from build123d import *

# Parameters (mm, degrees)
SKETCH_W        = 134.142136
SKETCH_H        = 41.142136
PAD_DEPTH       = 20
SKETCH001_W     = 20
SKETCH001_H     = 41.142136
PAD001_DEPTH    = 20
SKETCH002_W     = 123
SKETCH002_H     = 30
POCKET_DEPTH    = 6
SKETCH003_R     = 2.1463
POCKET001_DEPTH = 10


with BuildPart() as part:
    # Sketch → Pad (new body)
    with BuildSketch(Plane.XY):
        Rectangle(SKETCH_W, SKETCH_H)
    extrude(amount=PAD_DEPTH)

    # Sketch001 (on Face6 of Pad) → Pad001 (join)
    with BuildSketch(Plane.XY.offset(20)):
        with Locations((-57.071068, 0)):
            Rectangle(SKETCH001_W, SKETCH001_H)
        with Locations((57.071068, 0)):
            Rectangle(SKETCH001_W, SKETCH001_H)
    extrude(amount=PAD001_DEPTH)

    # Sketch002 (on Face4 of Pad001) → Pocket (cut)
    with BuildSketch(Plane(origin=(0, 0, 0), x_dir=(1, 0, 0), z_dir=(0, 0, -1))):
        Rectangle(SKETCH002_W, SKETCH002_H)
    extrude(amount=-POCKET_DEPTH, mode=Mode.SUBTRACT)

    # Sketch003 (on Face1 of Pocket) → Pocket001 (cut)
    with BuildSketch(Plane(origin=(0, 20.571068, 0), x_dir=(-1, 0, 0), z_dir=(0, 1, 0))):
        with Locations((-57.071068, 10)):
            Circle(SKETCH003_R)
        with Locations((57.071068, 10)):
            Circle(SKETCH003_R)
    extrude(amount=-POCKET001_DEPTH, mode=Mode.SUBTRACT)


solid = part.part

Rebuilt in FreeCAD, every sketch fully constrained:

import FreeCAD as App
import Part
import Sketcher

V = App.Vector
Q = App.Units.Quantity

doc = App.newDocument("Part")
body = doc.addObject("PartDesign::Body", "Body")

sketch1 = body.newObject("Sketcher::SketchObject", "Sketch")
sketch1.AttachmentSupport = (doc.getObject("XY_Plane"), [""])
sketch1.MapMode = "FlatFace"
sketch1.addGeometry([
    Part.LineSegment(V(-67, 21, 0), V(-67, -21, 0)),
    Part.LineSegment(V(-67, -21, 0), V(67, -21, 0)),
    Part.LineSegment(V(67, -21, 0), V(67, 21, 0)),
    Part.LineSegment(V(67, 21, 0), V(-67, 21, 0)),
], False)
sketch1.addConstraint([
    Sketcher.Constraint("Coincident", 0, 2, 1, 1),
    Sketcher.Constraint("Coincident", 1, 2, 2, 1),
    Sketcher.Constraint("Coincident", 2, 2, 3, 1),
    Sketcher.Constraint("Coincident", 3, 2, 0, 1),
    Sketcher.Constraint("Vertical", 0),
    Sketcher.Constraint("Horizontal", 1),
    Sketcher.Constraint("Vertical", 2),
    Sketcher.Constraint("Horizontal", 3),
    Sketcher.Constraint("Symmetric", 0, 2, 2, 2, -1, 1),
    Sketcher.Constraint("DistanceX", 1, 1, 1, 2, Q("134.142136 mm")),
    Sketcher.Constraint("DistanceY", 0, 2, 0, 1, Q("41.142136 mm")),
])
pad1 = body.newObject("PartDesign::Pad", "Pad")
pad1.Profile = sketch1
pad1.Length = 20

sketch2 = body.newObject("Sketcher::SketchObject", "Sketch001")
sketch2.AttachmentSupport = (doc.getObject("XY_Plane"), [""])
sketch2.MapMode = "FlatFace"
sketch2.AttachmentOffset = App.Placement(V(0, 0, 20), App.Rotation())
sketch2.addGeometry([
    Part.LineSegment(V(-67, 21, 0), V(-67, -21, 0)),
    Part.LineSegment(V(-67, -21, 0), V(-47, -21, 0)),
    Part.LineSegment(V(-47, -21, 0), V(-47, 21, 0)),
    Part.LineSegment(V(-47, 21, 0), V(-67, 21, 0)),
    Part.LineSegment(V(47, 21, 0), V(47, -21, 0)),
    Part.LineSegment(V(47, -21, 0), V(67, -21, 0)),
    Part.LineSegment(V(67, -21, 0), V(67, 21, 0)),
    Part.LineSegment(V(67, 21, 0), V(47, 21, 0)),
], False)
sketch2.addConstraint([
    Sketcher.Constraint("Coincident", 0, 2, 1, 1),
    Sketcher.Constraint("Coincident", 1, 2, 2, 1),
    Sketcher.Constraint("Coincident", 2, 2, 3, 1),
    Sketcher.Constraint("Coincident", 3, 2, 0, 1),
    Sketcher.Constraint("Coincident", 4, 2, 5, 1),
    Sketcher.Constraint("Coincident", 5, 2, 6, 1),
    Sketcher.Constraint("Coincident", 6, 2, 7, 1),
    Sketcher.Constraint("Coincident", 7, 2, 4, 1),
    Sketcher.Constraint("Vertical", 0),
    Sketcher.Constraint("Horizontal", 1),
    Sketcher.Constraint("Vertical", 2),
    Sketcher.Constraint("Horizontal", 3),
    Sketcher.Constraint("Vertical", 4),
    Sketcher.Constraint("Horizontal", 5),
    Sketcher.Constraint("Vertical", 6),
    Sketcher.Constraint("Horizontal", 7),
    Sketcher.Constraint("Symmetric", 2, 2, 4, 2, -1, 1),
    Sketcher.Constraint("Symmetric", 0, 2, 6, 2, -1, 1),
    Sketcher.Constraint("Horizontal", 1, 2, 4, 2),
    Sketcher.Constraint("DistanceX", 1, 1, 1, 2, Q("20 mm")),
    Sketcher.Constraint("DistanceY", 0, 2, 0, 1, Q("41.142136 mm")),
    Sketcher.Constraint("DistanceX", 0, 2, -1, 1, Q("67.071068 mm")),
])
pad2 = body.newObject("PartDesign::Pad", "Pad001")
pad2.Profile = sketch2
pad2.Length = 20

sketch3 = body.newObject("Sketcher::SketchObject", "Sketch002")
sketch3.AttachmentSupport = (doc.getObject("XY_Plane"), [""])
sketch3.MapMode = "FlatFace"
sketch3.addGeometry([
    Part.LineSegment(V(-62, -15, 0), V(-62, 15, 0)),
    Part.LineSegment(V(-62, 15, 0), V(62, 15, 0)),
    Part.LineSegment(V(62, 15, 0), V(62, -15, 0)),
    Part.LineSegment(V(62, -15, 0), V(-62, -15, 0)),
], False)
sketch3.addConstraint([
    Sketcher.Constraint("Coincident", 0, 2, 1, 1),
    Sketcher.Constraint("Coincident", 1, 2, 2, 1),
    Sketcher.Constraint("Coincident", 2, 2, 3, 1),
    Sketcher.Constraint("Coincident", 3, 2, 0, 1),
    Sketcher.Constraint("Vertical", 0),
    Sketcher.Constraint("Horizontal", 1),
    Sketcher.Constraint("Vertical", 2),
    Sketcher.Constraint("Horizontal", 3),
    Sketcher.Constraint("Symmetric", 0, 2, 2, 2, -1, 1),
    Sketcher.Constraint("DistanceX", 1, 1, 1, 2, Q("123 mm")),
    Sketcher.Constraint("DistanceY", 0, 1, 0, 2, Q("30 mm")),
])
pocket1 = body.newObject("PartDesign::Pocket", "Pocket")
pocket1.Profile = sketch3
pocket1.Length = 6
pocket1.Reversed = True

sketch4 = body.newObject("Sketcher::SketchObject", "Sketch003")
sketch4.AttachmentSupport = (doc.getObject("XZ_Plane"), [""])
sketch4.MapMode = "FlatFace"
sketch4.AttachmentOffset = App.Placement(V(0, 0, -20.571068), App.Rotation())
sketch4.addGeometry([
    Part.Circle(V(57.1, 10, 0), V(0, 0, 1), 2.1),
    Part.Circle(V(-57.1, 10, 0), V(0, 0, 1), 2.1),
], False)
sketch4.addConstraint([
    Sketcher.Constraint("Equal", 0, 1),
    Sketcher.Constraint("Symmetric", 0, 3, 1, 3, -2),
    Sketcher.Constraint("DistanceY", -1, 1, 0, 3, Q("10 mm")),
    Sketcher.Constraint("Diameter", 0, Q("4.2926 mm")),
    Sketcher.Constraint("DistanceX", -1, 1, 0, 3, Q("57.071068 mm")),
])
pocket2 = body.newObject("PartDesign::Pocket", "Pocket001")
pocket2.Profile = sketch4
pocket2.Length = 10
pocket2.Reversed = True

doc.recompute()
